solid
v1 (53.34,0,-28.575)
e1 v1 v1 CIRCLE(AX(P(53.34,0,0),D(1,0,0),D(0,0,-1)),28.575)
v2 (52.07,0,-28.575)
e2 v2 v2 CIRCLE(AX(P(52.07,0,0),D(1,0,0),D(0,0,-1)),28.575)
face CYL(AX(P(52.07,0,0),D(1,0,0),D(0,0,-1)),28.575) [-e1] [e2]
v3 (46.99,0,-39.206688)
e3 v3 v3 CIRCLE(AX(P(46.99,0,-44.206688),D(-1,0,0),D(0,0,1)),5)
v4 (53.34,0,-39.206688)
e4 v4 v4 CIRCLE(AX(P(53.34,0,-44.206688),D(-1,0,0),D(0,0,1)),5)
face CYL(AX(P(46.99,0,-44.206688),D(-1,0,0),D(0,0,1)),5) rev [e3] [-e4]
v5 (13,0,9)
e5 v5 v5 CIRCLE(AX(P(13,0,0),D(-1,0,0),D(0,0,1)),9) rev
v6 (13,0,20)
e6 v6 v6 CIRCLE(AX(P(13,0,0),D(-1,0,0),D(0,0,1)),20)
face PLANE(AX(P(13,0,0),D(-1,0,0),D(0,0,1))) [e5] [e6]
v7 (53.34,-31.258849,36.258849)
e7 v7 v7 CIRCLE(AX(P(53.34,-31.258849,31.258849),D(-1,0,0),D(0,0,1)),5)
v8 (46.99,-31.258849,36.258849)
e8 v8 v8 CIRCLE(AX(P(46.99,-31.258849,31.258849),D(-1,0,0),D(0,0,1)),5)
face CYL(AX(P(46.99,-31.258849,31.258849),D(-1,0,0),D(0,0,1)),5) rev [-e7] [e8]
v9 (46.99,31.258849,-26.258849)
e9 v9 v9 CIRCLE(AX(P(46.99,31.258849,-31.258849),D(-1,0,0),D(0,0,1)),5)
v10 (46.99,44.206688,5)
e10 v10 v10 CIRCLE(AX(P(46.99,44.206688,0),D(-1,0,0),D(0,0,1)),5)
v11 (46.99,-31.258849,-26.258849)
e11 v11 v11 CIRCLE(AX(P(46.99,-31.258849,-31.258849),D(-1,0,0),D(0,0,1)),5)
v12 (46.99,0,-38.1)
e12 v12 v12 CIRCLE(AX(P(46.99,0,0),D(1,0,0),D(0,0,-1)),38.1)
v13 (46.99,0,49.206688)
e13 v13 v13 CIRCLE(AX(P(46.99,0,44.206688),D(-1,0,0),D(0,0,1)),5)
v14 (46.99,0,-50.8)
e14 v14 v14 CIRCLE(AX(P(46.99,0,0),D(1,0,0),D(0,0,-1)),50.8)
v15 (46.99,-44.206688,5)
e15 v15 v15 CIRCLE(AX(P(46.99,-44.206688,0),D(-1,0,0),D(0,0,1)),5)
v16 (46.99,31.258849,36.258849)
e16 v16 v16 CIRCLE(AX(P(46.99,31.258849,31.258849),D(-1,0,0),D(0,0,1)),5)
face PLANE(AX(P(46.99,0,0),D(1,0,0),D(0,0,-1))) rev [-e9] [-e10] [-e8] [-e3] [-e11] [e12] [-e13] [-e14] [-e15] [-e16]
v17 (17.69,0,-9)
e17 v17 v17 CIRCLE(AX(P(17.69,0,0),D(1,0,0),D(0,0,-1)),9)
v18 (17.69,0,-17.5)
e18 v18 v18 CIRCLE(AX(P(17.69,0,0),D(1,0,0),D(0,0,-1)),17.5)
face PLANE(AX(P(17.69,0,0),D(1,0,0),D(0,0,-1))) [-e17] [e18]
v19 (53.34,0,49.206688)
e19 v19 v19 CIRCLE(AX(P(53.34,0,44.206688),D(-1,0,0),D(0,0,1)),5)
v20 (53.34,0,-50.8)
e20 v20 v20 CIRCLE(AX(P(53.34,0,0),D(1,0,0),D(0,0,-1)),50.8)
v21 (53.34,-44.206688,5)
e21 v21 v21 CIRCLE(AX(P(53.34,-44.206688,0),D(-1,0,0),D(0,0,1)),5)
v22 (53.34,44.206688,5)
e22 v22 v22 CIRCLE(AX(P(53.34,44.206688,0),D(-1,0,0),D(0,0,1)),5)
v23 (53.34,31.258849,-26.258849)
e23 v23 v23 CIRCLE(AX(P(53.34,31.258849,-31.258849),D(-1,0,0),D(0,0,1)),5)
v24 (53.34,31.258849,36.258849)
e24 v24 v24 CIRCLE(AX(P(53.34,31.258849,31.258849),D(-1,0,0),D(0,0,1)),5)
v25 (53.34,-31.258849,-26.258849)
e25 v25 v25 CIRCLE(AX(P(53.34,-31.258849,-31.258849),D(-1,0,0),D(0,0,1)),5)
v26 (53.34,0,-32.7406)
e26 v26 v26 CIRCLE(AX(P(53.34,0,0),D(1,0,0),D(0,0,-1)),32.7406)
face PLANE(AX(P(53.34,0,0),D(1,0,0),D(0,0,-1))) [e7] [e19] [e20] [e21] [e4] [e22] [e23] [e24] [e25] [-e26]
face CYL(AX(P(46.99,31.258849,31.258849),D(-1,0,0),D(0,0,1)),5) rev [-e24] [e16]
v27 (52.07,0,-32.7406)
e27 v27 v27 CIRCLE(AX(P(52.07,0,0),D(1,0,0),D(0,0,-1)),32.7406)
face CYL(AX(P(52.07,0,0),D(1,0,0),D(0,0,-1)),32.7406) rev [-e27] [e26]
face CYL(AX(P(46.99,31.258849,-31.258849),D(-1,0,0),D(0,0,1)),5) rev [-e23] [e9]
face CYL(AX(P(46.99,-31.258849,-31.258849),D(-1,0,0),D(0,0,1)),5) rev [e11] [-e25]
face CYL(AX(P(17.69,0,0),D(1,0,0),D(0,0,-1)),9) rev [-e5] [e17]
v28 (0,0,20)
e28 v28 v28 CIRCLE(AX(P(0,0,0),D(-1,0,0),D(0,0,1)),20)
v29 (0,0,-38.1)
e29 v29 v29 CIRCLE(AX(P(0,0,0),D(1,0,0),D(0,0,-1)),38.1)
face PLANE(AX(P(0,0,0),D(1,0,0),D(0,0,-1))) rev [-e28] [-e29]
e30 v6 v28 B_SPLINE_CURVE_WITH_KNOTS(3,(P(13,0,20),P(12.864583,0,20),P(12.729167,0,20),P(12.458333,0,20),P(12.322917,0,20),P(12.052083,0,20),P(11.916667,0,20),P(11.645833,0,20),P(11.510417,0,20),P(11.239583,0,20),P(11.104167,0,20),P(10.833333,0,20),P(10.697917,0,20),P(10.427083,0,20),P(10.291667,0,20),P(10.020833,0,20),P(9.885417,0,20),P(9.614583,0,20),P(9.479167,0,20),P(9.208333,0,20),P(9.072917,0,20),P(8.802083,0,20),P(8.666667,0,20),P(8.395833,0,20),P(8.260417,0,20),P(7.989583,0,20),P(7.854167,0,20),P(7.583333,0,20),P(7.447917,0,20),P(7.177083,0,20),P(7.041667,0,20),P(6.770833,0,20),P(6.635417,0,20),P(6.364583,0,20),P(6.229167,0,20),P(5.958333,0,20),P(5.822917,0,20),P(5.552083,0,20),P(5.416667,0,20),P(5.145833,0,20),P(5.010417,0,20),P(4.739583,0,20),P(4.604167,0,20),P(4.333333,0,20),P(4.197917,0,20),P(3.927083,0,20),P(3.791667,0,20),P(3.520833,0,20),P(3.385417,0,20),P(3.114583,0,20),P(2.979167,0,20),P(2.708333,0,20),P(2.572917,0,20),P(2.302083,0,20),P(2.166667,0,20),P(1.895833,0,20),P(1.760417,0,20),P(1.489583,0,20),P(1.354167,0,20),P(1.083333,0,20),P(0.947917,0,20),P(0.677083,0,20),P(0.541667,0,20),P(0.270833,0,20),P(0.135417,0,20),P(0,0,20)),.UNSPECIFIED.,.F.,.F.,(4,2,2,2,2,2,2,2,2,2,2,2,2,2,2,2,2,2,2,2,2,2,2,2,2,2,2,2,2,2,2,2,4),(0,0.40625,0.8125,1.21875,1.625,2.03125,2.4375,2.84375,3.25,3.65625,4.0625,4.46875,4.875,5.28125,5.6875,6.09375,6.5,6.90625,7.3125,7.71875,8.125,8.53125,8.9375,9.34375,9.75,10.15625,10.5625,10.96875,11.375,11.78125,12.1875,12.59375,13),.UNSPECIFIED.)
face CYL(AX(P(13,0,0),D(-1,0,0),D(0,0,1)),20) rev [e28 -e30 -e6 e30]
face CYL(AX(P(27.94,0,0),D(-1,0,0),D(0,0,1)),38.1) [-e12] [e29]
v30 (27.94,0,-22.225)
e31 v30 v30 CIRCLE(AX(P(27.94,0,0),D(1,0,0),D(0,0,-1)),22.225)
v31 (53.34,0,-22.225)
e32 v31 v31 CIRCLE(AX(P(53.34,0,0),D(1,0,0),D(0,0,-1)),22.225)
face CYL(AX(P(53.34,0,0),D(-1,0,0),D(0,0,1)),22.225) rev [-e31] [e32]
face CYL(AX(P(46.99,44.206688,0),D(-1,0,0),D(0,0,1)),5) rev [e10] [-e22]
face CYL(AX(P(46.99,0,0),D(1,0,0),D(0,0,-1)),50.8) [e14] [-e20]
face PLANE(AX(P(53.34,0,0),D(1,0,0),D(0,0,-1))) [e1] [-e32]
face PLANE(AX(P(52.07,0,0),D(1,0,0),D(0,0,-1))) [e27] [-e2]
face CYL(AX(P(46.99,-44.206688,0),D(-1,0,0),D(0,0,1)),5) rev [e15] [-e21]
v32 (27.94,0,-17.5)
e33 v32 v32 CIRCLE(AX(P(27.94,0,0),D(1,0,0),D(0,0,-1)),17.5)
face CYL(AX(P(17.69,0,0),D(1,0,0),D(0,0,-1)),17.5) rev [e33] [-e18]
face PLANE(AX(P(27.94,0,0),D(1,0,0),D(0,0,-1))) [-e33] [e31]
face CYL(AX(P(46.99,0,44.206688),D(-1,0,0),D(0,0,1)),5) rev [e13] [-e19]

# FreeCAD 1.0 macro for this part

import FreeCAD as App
import Part
import Sketcher
Q = App.Units.Quantity

doc = App.newDocument("Part")
body = doc.addObject("PartDesign::Body", "Body")

# Sketch on YZ plane
sketch1 = doc.addObject("Sketcher::SketchObject", "Sketch")
body.addObject(sketch1)
sketch1.AttachmentSupport = (doc.YZ_Plane, [""])
sketch1.MapMode = "FlatFace"
sketch1.addGeometry(Part.Circle(App.Vector(0, 0, 0), App.Vector(0, 0, 1), 38), False)
sketch1.addConstraint(Sketcher.Constraint("Coincident", 0, 3, -1, 1))
sketch1.addConstraint(Sketcher.Constraint("Diameter", 0, Q("3 in")))
pad1 = doc.addObject("PartDesign::Pad", "Pad")
body.addObject(pad1)
pad1.Profile = sketch1
pad1.Length = Q("1.1 in")

# Sketch on YZ plane
sketch2 = doc.addObject("Sketcher::SketchObject", "Sketch001")
body.addObject(sketch2)
sketch2.AttachmentSupport = (doc.YZ_Plane, [""])
sketch2.MapMode = "FlatFace"
sketch2.AttachmentOffset = App.Placement(App.Vector(0, 0, 1.1 * 25.4), App.Rotation())
sketch2.addGeometry(Part.Circle(App.Vector(0, 0, 0), App.Vector(0, 0, 1), 18), False)
sketch2.addConstraint(Sketcher.Constraint("Coincident", 0, 3, -1, 1))
sketch2.addConstraint(Sketcher.Constraint("Diameter", 0, 35.0))
pocket1 = doc.addObject("PartDesign::Pocket", "Pocket")
body.addObject(pocket1)
pocket1.Profile = sketch2
pocket1.Length = 10.25

# Sketch on YZ plane
sketch3 = doc.addObject("Sketcher::SketchObject", "Sketch002")
body.addObject(sketch3)
sketch3.AttachmentSupport = (doc.YZ_Plane, [""])
sketch3.MapMode = "FlatFace"
sketch3.AttachmentOffset = App.Placement(App.Vector(0, 0, 17.69), App.Rotation())
sketch3.addGeometry(Part.Circle(App.Vector(0, 0, 0), App.Vector(0, 0, 1), 9), False)
sketch3.addConstraint(Sketcher.Constraint("Coincident", 0, 3, -1, 1))
sketch3.addConstraint(Sketcher.Constraint("Diameter", 0, 18.0))
doc.recompute()
hole = doc.addObject("PartDesign::Hole", "Hole")
body.addObject(hole)
hole.Profile = sketch3
hole.ThreadType = "None"
hole.Diameter = 18
hole.DepthType = "ThroughAll"

# Sketch on YZ plane
sketch4 = doc.addObject("Sketcher::SketchObject", "Sketch003")
body.addObject(sketch4)
sketch4.AttachmentSupport = (doc.YZ_Plane, [""])
sketch4.MapMode = "FlatFace"
sketch4.AttachmentOffset = App.Placement(App.Vector(0, 0, 1.1 * 25.4), App.Rotation())
sketch4.addGeometry(Part.Circle(App.Vector(0, 0, 0), App.Vector(0, 0, 1), 38), False)
sketch4.addGeometry(Part.Circle(App.Vector(0, 0, 0), App.Vector(0, 0, 1), 22), False)
sketch4.addConstraint(Sketcher.Constraint("Coincident", 0, 3, -1, 1))
sketch4.addConstraint(Sketcher.Constraint("Coincident", 1, 3, -1, 1))
sketch4.addConstraint(Sketcher.Constraint("Diameter", 0, Q("3 in")))
sketch4.addConstraint(Sketcher.Constraint("Diameter", 1, Q("1.75 in")))
pad2 = doc.addObject("PartDesign::Pad", "Pad001")
body.addObject(pad2)
pad2.Profile = sketch4
pad2.Length = Q("1 in")

# Sketch on YZ plane
sketch5 = doc.addObject("Sketcher::SketchObject", "Sketch004")
body.addObject(sketch5)
sketch5.AttachmentSupport = (doc.YZ_Plane, [""])
sketch5.MapMode = "FlatFace"
sketch5.AttachmentOffset = App.Placement(App.Vector(0, 0, 1.85 * 25.4), App.Rotation())
sketch5.addGeometry(Part.Circle(App.Vector(0, 0, 0), App.Vector(0, 0, 1), 51), False)
sketch5.addGeometry(Part.Circle(App.Vector(0, 0, 0), App.Vector(0, 0, 1), 22), False)
sketch5.addConstraint(Sketcher.Constraint("Coincident", 0, 3, -1, 1))
sketch5.addConstraint(Sketcher.Constraint("Coincident", 1, 3, -1, 1))
sketch5.addConstraint(Sketcher.Constraint("Diameter", 0, Q("4 in")))
sketch5.addConstraint(Sketcher.Constraint("Diameter", 1, Q("1.75 in")))
pad3 = doc.addObject("PartDesign::Pad", "Pad002")
body.addObject(pad3)
pad3.Profile = sketch5
pad3.Length = Q("0.25 in")

# Sketch on YZ plane
sketch6 = doc.addObject("Sketcher::SketchObject", "Sketch005")
body.addObject(sketch6)
sketch6.AttachmentSupport = (doc.YZ_Plane, [""])
sketch6.MapMode = "FlatFace"
sketch6.addGeometry(Part.Circle(App.Vector(0, 0, 0), App.Vector(0, 0, 1), 20), False)
sketch6.addConstraint(Sketcher.Constraint("Coincident", 0, 3, -1, 1))
sketch6.addConstraint(Sketcher.Constraint("Diameter", 0, 40.0))
pocket2 = doc.addObject("PartDesign::Pocket", "Pocket001")
body.addObject(pocket2)
pocket2.Profile = sketch6
pocket2.Length = 13
pocket2.Reversed = True

# Sketch on YZ plane
sketch7 = doc.addObject("Sketcher::SketchObject", "Sketch006")
body.addObject(sketch7)
sketch7.AttachmentSupport = (doc.YZ_Plane, [""])
sketch7.MapMode = "FlatFace"
sketch7.AttachmentOffset = App.Placement(App.Vector(0, 0, 1.85 * 25.4), App.Rotation())
sketch7.addGeometry(Part.Circle(App.Vector(0, -44, 0), App.Vector(0, 0, 1), 5), False)
sketch7.addGeometry(Part.Circle(App.Vector(31, -31, 0), App.Vector(0, 0, 1), 5), False)
sketch7.addGeometry(Part.Circle(App.Vector(44, 0, 0), App.Vector(0, 0, 1), 5), False)
sketch7.addGeometry(Part.Circle(App.Vector(31, 31, 0), App.Vector(0, 0, 1), 5), False)
sketch7.addGeometry(Part.Circle(App.Vector(0, 44, 0), App.Vector(0, 0, 1), 5), False)
sketch7.addGeometry(Part.Circle(App.Vector(-31, 31, 0), App.Vector(0, 0, 1), 5), False)
sketch7.addGeometry(Part.Circle(App.Vector(-44, 0, 0), App.Vector(0, 0, 1), 5), False)
sketch7.addGeometry(Part.Circle(App.Vector(-31, -31, 0), App.Vector(0, 0, 1), 5), False)
sketch7.addGeometry(Part.Circle(App.Vector(0, 0, 0), App.Vector(0, 0, 1), 5), False)
sketch7.addConstraint(Sketcher.Constraint("Coincident", 8, 3, -1, 1))
sketch7.addConstraint(Sketcher.Constraint("Equal", 0, 1))
sketch7.addConstraint(Sketcher.Constraint("Equal", 1, 2))
sketch7.addConstraint(Sketcher.Constraint("Equal", 2, 3))
sketch7.addConstraint(Sketcher.Constraint("Equal", 3, 4))
sketch7.addConstraint(Sketcher.Constraint("Equal", 4, 5))
sketch7.addConstraint(Sketcher.Constraint("Equal", 5, 6))
sketch7.addConstraint(Sketcher.Constraint("Equal", 6, 7))
sketch7.addConstraint(Sketcher.Constraint("Equal", 7, 8))
sketch7.addConstraint(Sketcher.Constraint("Symmetric", 0, 3, 4, 3, -1, 1))
sketch7.addConstraint(Sketcher.Constraint("Symmetric", 1, 3, 5, 3, -1, 1))
sketch7.addConstraint(Sketcher.Constraint("Symmetric", 2, 3, 6, 3, -1, 1))
sketch7.addConstraint(Sketcher.Constraint("Symmetric", 3, 3, 7, 3, -1, 1))
sketch7.addConstraint(Sketcher.Constraint("Symmetric", 3, 3, 5, 3, -2))
sketch7.addConstraint(Sketcher.Constraint("PointOnObject", 0, 3, -2))
sketch7.addConstraint(Sketcher.Constraint("PointOnObject", 2, 3, -1))
sketch7.addConstraint(Sketcher.Constraint("Diameter", 0, 10.0))
sketch7.addConstraint(Sketcher.Constraint("DistanceY", 0, 3, -1, 1, 44.206688))
sketch7.addConstraint(Sketcher.Constraint("DistanceX", -1, 1, 1, 3, 31.258849))
sketch7.addConstraint(Sketcher.Constraint("DistanceY", 1, 3, -1, 1, 31.258849))
sketch7.addConstraint(Sketcher.Constraint("DistanceX", -1, 1, 2, 3, 44.206688))
doc.recompute()
hole2 = doc.addObject("PartDesign::Hole", "Hole001")
body.addObject(hole2)
hole2.Profile = sketch7
hole2.ThreadType = "None"
hole2.Diameter = 10
hole2.DepthType = "ThroughAll"
hole2.Reversed = True

# Sketch on YZ plane
sketch8 = doc.addObject("Sketcher::SketchObject", "Sketch007")
body.addObject(sketch8)
sketch8.AttachmentSupport = (doc.YZ_Plane, [""])
sketch8.MapMode = "FlatFace"
sketch8.AttachmentOffset = App.Placement(App.Vector(0, 0, 2.1 * 25.4), App.Rotation())
sketch8.addGeometry(Part.Circle(App.Vector(0, 0, 0), App.Vector(0, 0, 1), 33), False)
sketch8.addGeometry(Part.Circle(App.Vector(0, 0, 0), App.Vector(0, 0, 1), 29), False)
sketch8.addConstraint(Sketcher.Constraint("Coincident", 0, 3, -1, 1))
sketch8.addConstraint(Sketcher.Constraint("Coincident", 1, 3, -1, 1))
sketch8.addConstraint(Sketcher.Constraint("Diameter", 1, Q("2.25 in")))
sketch8.addConstraint(Sketcher.Constraint("Diameter", 0, Q("2.578 in")))
pocket3 = doc.addObject("PartDesign::Pocket", "Pocket002")
body.addObject(pocket3)
pocket3.Profile = sketch8
pocket3.Length = Q("0.05 in")

doc.recompute()
